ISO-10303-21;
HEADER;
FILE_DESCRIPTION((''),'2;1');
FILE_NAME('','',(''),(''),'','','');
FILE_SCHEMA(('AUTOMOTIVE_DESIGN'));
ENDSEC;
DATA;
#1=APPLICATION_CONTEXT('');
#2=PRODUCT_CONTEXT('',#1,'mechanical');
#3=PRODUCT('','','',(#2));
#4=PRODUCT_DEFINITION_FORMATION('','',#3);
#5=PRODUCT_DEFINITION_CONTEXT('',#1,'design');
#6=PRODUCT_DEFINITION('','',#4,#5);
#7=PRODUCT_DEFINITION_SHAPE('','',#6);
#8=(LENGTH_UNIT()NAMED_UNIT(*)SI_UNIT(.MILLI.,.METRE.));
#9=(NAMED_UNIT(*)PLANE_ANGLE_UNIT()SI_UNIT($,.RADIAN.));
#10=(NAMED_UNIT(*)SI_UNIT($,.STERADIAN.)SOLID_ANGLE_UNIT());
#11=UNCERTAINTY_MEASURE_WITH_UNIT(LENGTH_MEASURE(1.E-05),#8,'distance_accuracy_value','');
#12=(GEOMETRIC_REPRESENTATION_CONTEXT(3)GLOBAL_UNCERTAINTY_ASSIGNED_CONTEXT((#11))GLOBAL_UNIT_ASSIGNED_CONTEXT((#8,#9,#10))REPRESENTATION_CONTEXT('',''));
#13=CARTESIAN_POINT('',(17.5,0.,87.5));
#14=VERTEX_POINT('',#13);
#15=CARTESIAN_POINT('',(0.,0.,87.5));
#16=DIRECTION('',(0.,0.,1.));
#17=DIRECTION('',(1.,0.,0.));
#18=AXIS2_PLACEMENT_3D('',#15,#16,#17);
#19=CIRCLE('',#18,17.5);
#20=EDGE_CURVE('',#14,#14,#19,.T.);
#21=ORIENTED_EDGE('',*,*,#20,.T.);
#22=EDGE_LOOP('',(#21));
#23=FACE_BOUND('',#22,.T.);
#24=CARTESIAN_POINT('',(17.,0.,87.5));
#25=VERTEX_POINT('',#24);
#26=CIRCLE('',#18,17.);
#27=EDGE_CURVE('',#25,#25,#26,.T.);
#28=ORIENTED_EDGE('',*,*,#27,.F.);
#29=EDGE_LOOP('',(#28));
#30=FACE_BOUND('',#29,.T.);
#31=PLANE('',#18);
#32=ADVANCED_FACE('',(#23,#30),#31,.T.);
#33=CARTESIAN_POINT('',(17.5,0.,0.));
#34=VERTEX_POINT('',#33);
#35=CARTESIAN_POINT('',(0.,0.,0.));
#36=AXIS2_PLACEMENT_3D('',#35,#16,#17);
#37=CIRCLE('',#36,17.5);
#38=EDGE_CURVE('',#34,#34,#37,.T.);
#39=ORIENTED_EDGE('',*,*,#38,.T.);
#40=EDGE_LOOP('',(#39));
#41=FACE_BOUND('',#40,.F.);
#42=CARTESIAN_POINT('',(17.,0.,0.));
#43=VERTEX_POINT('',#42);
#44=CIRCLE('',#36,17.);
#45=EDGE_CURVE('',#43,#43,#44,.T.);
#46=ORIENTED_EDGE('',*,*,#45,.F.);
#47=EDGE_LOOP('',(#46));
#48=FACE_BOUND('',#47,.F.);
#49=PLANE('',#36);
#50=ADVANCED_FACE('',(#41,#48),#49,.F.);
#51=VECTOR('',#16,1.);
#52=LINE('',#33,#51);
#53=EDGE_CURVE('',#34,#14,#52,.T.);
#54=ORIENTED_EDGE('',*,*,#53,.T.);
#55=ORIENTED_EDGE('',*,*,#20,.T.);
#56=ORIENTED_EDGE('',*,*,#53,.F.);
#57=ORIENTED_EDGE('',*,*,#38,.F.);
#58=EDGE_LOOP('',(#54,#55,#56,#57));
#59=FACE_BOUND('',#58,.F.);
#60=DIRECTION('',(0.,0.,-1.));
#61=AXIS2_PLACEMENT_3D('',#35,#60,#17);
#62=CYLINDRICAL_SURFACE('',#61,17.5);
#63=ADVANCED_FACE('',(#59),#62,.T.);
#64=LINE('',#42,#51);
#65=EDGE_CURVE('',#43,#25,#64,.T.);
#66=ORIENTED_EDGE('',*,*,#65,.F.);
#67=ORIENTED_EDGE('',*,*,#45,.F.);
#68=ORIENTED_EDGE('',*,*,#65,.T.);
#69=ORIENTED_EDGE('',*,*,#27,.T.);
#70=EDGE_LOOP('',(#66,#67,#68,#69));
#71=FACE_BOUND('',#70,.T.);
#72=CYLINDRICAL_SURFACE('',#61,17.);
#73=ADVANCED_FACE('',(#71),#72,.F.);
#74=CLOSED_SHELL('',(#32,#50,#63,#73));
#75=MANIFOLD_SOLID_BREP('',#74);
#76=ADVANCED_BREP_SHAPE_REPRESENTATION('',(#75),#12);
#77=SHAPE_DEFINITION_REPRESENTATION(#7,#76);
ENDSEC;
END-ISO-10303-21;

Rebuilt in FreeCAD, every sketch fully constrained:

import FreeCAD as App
import Part
import Sketcher
Q = App.Units.Quantity

doc = App.newDocument("Part")
params = doc.addObject("Spreadsheet::Sheet", "Params")
for row, (alias, value) in enumerate([
    ("sketch1_diameter", "35 mm"),
    ("sketch1_diameter2", "34 mm"),
    ("pad1_length", "87.5 mm"),
], start=1):
    params.set(f"A{row}", alias)
    params.set(f"B{row}", "=" + value)
    params.setAlias(f"B{row}", alias)

body = doc.addObject("PartDesign::Body", "Body")

sketch1 = doc.addObject("Sketcher::SketchObject", "Sketch")
body.addObject(sketch1)
sketch1.AttachmentSupport = (doc.XY_Plane, [""])
sketch1.MapMode = "FlatFace"
sketch1.addGeometry([
    Part.Circle(App.Vector(0, 0, 0), App.Vector(0, 0, 1), 18),
    Part.Circle(App.Vector(0, 0, 0), App.Vector(0, 0, 1), 17),
], False)
sketch1.addConstraint([
    Sketcher.Constraint("Coincident", 0, 3, -1, 1),
    Sketcher.Constraint("Coincident", 1, 3, -1, 1),
    Sketcher.Constraint("Diameter", 0, Q("35 mm")),
    Sketcher.Constraint("Diameter", 1, Q("34 mm")),
])
sketch1.setExpression("Constraints[2]", "Params.sketch1_diameter")
sketch1.setExpression("Constraints[3]", "Params.sketch1_diameter2")
pad1 = doc.addObject("PartDesign::Pad", "Pad")
body.addObject(pad1)
pad1.Profile = sketch1
pad1.setExpression("Length", "Params.pad1_length")

doc.recompute()
